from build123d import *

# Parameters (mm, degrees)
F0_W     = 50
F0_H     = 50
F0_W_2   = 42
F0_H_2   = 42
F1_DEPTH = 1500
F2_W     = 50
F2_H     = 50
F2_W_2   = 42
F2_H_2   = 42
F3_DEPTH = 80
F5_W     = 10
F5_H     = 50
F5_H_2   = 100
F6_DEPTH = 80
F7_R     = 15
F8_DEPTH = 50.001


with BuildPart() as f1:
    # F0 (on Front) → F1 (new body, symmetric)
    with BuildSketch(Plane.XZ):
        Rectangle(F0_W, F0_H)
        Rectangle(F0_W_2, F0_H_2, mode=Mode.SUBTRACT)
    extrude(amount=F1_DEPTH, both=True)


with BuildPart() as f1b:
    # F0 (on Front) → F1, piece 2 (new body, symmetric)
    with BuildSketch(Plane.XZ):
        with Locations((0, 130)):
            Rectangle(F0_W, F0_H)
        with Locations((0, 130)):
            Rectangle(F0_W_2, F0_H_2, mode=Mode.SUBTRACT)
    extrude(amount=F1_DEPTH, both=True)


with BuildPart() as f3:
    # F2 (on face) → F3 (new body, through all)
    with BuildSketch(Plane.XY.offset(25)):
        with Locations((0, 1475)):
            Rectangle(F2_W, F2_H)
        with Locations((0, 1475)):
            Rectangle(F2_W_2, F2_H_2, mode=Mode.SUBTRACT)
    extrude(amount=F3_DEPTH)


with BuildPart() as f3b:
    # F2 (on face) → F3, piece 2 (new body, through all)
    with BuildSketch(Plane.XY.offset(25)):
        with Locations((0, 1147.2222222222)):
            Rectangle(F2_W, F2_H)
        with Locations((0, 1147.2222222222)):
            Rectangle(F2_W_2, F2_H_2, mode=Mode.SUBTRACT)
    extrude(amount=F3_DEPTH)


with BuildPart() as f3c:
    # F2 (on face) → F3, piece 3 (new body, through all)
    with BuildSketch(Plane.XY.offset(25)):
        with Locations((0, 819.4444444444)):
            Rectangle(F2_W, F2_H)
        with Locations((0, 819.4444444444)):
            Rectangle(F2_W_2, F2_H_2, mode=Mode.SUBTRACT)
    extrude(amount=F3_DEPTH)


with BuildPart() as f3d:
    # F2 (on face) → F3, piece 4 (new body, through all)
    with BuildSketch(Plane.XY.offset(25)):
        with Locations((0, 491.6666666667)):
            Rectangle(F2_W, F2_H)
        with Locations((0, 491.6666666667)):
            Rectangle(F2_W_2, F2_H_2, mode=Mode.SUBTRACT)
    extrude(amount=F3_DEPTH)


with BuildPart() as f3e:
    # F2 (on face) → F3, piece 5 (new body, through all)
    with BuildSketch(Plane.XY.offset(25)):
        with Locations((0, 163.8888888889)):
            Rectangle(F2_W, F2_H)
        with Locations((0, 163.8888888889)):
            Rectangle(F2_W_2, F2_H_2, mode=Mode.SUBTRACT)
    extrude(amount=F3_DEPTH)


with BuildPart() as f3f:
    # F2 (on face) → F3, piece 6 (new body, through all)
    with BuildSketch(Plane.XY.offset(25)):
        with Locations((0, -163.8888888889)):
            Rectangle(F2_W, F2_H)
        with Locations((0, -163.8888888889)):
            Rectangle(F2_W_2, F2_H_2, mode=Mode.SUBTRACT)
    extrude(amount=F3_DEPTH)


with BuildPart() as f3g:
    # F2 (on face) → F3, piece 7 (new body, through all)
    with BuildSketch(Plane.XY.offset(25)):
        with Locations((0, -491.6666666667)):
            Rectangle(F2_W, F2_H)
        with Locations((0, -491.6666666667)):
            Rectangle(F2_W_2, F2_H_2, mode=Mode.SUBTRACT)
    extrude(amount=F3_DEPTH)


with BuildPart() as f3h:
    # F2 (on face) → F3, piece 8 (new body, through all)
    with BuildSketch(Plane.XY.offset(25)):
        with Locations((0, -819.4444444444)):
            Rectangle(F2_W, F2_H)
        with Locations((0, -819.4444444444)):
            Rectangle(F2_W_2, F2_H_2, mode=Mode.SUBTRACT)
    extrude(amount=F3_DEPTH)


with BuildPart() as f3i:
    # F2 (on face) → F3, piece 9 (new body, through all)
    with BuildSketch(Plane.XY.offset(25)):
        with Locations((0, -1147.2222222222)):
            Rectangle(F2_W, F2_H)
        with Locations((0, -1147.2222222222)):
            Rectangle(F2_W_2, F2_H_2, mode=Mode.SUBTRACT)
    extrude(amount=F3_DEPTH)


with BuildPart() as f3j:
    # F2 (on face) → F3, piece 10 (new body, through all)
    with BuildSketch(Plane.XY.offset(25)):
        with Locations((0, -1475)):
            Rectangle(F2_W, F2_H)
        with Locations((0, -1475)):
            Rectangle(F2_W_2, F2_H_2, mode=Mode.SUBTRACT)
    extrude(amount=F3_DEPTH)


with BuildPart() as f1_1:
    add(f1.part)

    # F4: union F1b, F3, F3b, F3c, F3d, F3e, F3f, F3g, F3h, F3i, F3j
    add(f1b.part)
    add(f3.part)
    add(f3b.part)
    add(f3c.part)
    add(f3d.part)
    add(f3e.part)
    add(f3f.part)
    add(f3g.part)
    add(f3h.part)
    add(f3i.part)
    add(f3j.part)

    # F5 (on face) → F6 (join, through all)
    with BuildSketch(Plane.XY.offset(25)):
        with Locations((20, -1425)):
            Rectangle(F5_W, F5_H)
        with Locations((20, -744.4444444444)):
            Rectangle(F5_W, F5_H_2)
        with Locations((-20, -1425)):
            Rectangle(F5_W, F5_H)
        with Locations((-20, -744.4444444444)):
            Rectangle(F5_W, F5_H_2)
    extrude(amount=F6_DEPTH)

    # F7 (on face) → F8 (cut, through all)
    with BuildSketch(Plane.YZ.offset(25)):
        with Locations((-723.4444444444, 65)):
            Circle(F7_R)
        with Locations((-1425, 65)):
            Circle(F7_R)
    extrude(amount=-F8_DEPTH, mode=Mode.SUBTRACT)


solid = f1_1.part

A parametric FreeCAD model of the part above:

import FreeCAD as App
import Part
import Sketcher

V = App.Vector


def add_polygon(sketch, points):
    """Adds a closed chain of lines whose ends are joined by coincident constraints."""
    first, n = sketch.GeometryCount, len(points)
    for a, b in zip(points, points[1:] + points[:1]):
        sketch.addGeometry(Part.LineSegment(App.Vector(*a, 0), App.Vector(*b, 0)), False)
    for i in range(n):
        sketch.addConstraint(Sketcher.Constraint("Coincident", first + i, 2, first + (i + 1) % n, 1))

doc = App.newDocument("Part")
body = doc.addObject("PartDesign::Body", "Body")

# Sketch on XZ plane
sketch1 = body.newObject("Sketcher::SketchObject", "Sketch")
sketch1.AttachmentSupport = (doc.getObject("XZ_Plane"), [""])
sketch1.MapMode = "FlatFace"
add_polygon(sketch1, [(-25, 25), (-25, -25), (25, -25), (25, 25)])  # lines 0-3
add_polygon(sketch1, [(21, -21), (-21, -21), (-21, 21), (21, 21)])  # lines 4-7
sketch1.addConstraint([
    Sketcher.Constraint("Vertical", 0),
    Sketcher.Constraint("Horizontal", 1),
    Sketcher.Constraint("Vertical", 2),
    Sketcher.Constraint("Horizontal", 3),
    Sketcher.Constraint("Horizontal", 4),
    Sketcher.Constraint("Vertical", 5),
    Sketcher.Constraint("Horizontal", 6),
    Sketcher.Constraint("Vertical", 7),
    Sketcher.Constraint("Symmetric", 0, 2, 2, 2, -1, 1),
    Sketcher.Constraint("Symmetric", 4, 2, 6, 2, -1, 1),
    Sketcher.Constraint("Equal", 3, 0),
    Sketcher.Constraint("Equal", 6, 5),
    Sketcher.Constraint("DistanceX", 1, 1, 1, 2, 50.0),
    Sketcher.Constraint("DistanceX", 4, 2, 4, 1, 42.0),
])
pad1 = body.newObject("PartDesign::Pad", "Pad")
pad1.Profile = sketch1
pad1.Length = 3000
pad1.Midplane = True
body2 = doc.addObject("PartDesign::Body", "Body001")

# Sketch on XZ plane
sketch2 = body2.newObject("Sketcher::SketchObject", "Sketch001")
sketch2.AttachmentSupport = (doc.getObject("XZ_Plane001"), [""])
sketch2.MapMode = "FlatFace"
add_polygon(sketch2, [(-25, 155), (-25, 105), (25, 105), (25, 155)])  # lines 0-3
add_polygon(sketch2, [(21, 109), (-21, 109), (-21, 151), (21, 151)])  # lines 4-7
sketch2.addConstraint([
    Sketcher.Constraint("Vertical", 0),
    Sketcher.Constraint("Horizontal", 1),
    Sketcher.Constraint("Vertical", 2),
    Sketcher.Constraint("Horizontal", 3),
    Sketcher.Constraint("Horizontal", 4),
    Sketcher.Constraint("Vertical", 5),
    Sketcher.Constraint("Horizontal", 6),
    Sketcher.Constraint("Vertical", 7),
    Sketcher.Constraint("Equal", 3, 0),
    Sketcher.Constraint("Equal", 6, 5),
    Sketcher.Constraint("DistanceX", 1, 1, 1, 2, 50.0),
    Sketcher.Constraint("DistanceX", 4, 2, 4, 1, 42.0),
    Sketcher.Constraint("DistanceX", 0, 2, -1, 1, 25.0),
    Sketcher.Constraint("DistanceY", -1, 1, 0, 2, 105.0),
    Sketcher.Constraint("DistanceX", 4, 2, -1, 1, 21.0),
    Sketcher.Constraint("DistanceY", -1, 1, 4, 2, 109.0),
])
pad2 = body2.newObject("PartDesign::Pad", "Pad001")
pad2.Profile = sketch2
pad2.Length = 3000
pad2.Midplane = True
body3 = doc.addObject("PartDesign::Body", "Body002")

# Sketch on XY plane
sketch3 = body3.newObject("Sketcher::SketchObject", "Sketch002")
sketch3.AttachmentSupport = (doc.getObject("XY_Plane002"), [""])
sketch3.MapMode = "FlatFace"
sketch3.AttachmentOffset = App.Placement(V(0, 0, 25), App.Rotation())
add_polygon(sketch3, [(-25, 1500), (-25, 1450), (25, 1450), (25, 1500)])  # lines 0-3
add_polygon(sketch3, [(21, 1454), (-21, 1454), (-21, 1496), (21, 1496)])  # lines 4-7
sketch3.addConstraint([
    Sketcher.Constraint("Vertical", 0),
    Sketcher.Constraint("Horizontal", 1),
    Sketcher.Constraint("Vertical", 2),
    Sketcher.Constraint("Horizontal", 3),
    Sketcher.Constraint("Horizontal", 4),
    Sketcher.Constraint("Vertical", 5),
    Sketcher.Constraint("Horizontal", 6),
    Sketcher.Constraint("Vertical", 7),
    Sketcher.Constraint("Equal", 3, 0),
    Sketcher.Constraint("Equal", 6, 5),
    Sketcher.Constraint("DistanceX", 1, 1, 1, 2, 50.0),
    Sketcher.Constraint("DistanceX", 4, 2, 4, 1, 42.0),
    Sketcher.Constraint("DistanceX", 0, 2, -1, 1, 25.0),
    Sketcher.Constraint("DistanceY", -1, 1, 0, 2, 1450.0),
    Sketcher.Constraint("DistanceX", 4, 2, -1, 1, 21.0),
    Sketcher.Constraint("DistanceY", -1, 1, 4, 2, 1454.0),
])
pad3 = body3.newObject("PartDesign::Pad", "Pad002")
pad3.Profile = sketch3
pad3.Length = 80
body4 = doc.addObject("PartDesign::Body", "Body003")

# Sketch on XY plane
sketch4 = body4.newObject("Sketcher::SketchObject", "Sketch003")
sketch4.AttachmentSupport = (doc.getObject("XY_Plane003"), [""])
sketch4.MapMode = "FlatFace"
sketch4.AttachmentOffset = App.Placement(V(0, 0, 25), App.Rotation())
add_polygon(sketch4, [(-25, 1172.222222), (-25, 1122.222222), (25, 1122.222222), (25, 1172.222222)])  # lines 0-3
add_polygon(sketch4, [(21, 1126.222222), (-21, 1126.222222), (-21, 1168.222222), (21, 1168.222222)])  # lines 4-7
sketch4.addConstraint([
    Sketcher.Constraint("Vertical", 0),
    Sketcher.Constraint("Horizontal", 1),
    Sketcher.Constraint("Vertical", 2),
    Sketcher.Constraint("Horizontal", 3),
    Sketcher.Constraint("Horizontal", 4),
    Sketcher.Constraint("Vertical", 5),
    Sketcher.Constraint("Horizontal", 6),
    Sketcher.Constraint("Vertical", 7),
    Sketcher.Constraint("Equal", 3, 0),
    Sketcher.Constraint("Equal", 6, 5),
    Sketcher.Constraint("DistanceX", 1, 1, 1, 2, 50.0),
    Sketcher.Constraint("DistanceX", 4, 2, 4, 1, 42.0),
    Sketcher.Constraint("DistanceX", 0, 2, -1, 1, 25.0),
    Sketcher.Constraint("DistanceX", 4, 2, -1, 1, 21.0),
    Sketcher.Constraint("DistanceY", 0, 2, 4, 2, 4.0),
    Sketcher.Constraint("DistanceY", -1, 1, 0, 2, 1122.222222),
])
pad4 = body4.newObject("PartDesign::Pad", "Pad003")
pad4.Profile = sketch4
pad4.Length = 80
body5 = doc.addObject("PartDesign::Body", "Body004")

# Sketch on XY plane
sketch5 = body5.newObject("Sketcher::SketchObject", "Sketch004")
sketch5.AttachmentSupport = (doc.getObject("XY_Plane004"), [""])
sketch5.MapMode = "FlatFace"
sketch5.AttachmentOffset = App.Placement(V(0, 0, 25), App.Rotation())
add_polygon(sketch5, [(-25, 844.444444), (-25, 794.444444), (25, 794.444444), (25, 844.444444)])  # lines 0-3
add_polygon(sketch5, [(21, 798.444444), (-21, 798.444444), (-21, 840.444444), (21, 840.444444)])  # lines 4-7
sketch5.addConstraint([
    Sketcher.Constraint("Vertical", 0),
    Sketcher.Constraint("Horizontal", 1),
    Sketcher.Constraint("Vertical", 2),
    Sketcher.Constraint("Horizontal", 3),
    Sketcher.Constraint("Horizontal", 4),
    Sketcher.Constraint("Vertical", 5),
    Sketcher.Constraint("Horizontal", 6),
    Sketcher.Constraint("Vertical", 7),
    Sketcher.Constraint("Equal", 3, 0),
    Sketcher.Constraint("Equal", 6, 5),
    Sketcher.Constraint("DistanceX", 1, 1, 1, 2, 50.0),
    Sketcher.Constraint("DistanceX", 4, 2, 4, 1, 42.0),
    Sketcher.Constraint("DistanceX", 0, 2, -1, 1, 25.0),
    Sketcher.Constraint("DistanceX", 4, 2, -1, 1, 21.0),
    Sketcher.Constraint("DistanceY", 0, 2, 4, 2, 4.0),
    Sketcher.Constraint("DistanceY", -1, 1, 0, 2, 794.444444),
])
pad5 = body5.newObject("PartDesign::Pad", "Pad004")
pad5.Profile = sketch5
pad5.Length = 80
body6 = doc.addObject("PartDesign::Body", "Body005")

# Sketch on XY plane
sketch6 = body6.newObject("Sketcher::SketchObject", "Sketch005")
sketch6.AttachmentSupport = (doc.getObject("XY_Plane005"), [""])
sketch6.MapMode = "FlatFace"
sketch6.AttachmentOffset = App.Placement(V(0, 0, 25), App.Rotation())
add_polygon(sketch6, [(-25, 516.666667), (-25, 466.666667), (25, 466.666667), (25, 516.666667)])  # lines 0-3
add_polygon(sketch6, [(21, 470.666667), (-21, 470.666667), (-21, 512.666667), (21, 512.666667)])  # lines 4-7
sketch6.addConstraint([
    Sketcher.Constraint("Vertical", 0),
    Sketcher.Constraint("Horizontal", 1),
    Sketcher.Constraint("Vertical", 2),
    Sketcher.Constraint("Horizontal", 3),
    Sketcher.Constraint("Horizontal", 4),
    Sketcher.Constraint("Vertical", 5),
    Sketcher.Constraint("Horizontal", 6),
    Sketcher.Constraint("Vertical", 7),
    Sketcher.Constraint("Equal", 3, 0),
    Sketcher.Constraint("Equal", 6, 5),
    Sketcher.Constraint("DistanceX", 1, 1, 1, 2, 50.0),
    Sketcher.Constraint("DistanceX", 4, 2, 4, 1, 42.0),
    Sketcher.Constraint("DistanceX", 0, 2, -1, 1, 25.0),
    Sketcher.Constraint("DistanceX", 4, 2, -1, 1, 21.0),
    Sketcher.Constraint("DistanceY", 0, 2, 4, 2, 4.0),
    Sketcher.Constraint("DistanceY", -1, 1, 0, 2, 466.666667),
])
pad6 = body6.newObject("PartDesign::Pad", "Pad005")
pad6.Profile = sketch6
pad6.Length = 80
body7 = doc.addObject("PartDesign::Body", "Body006")

# Sketch on XY plane
sketch7 = body7.newObject("Sketcher::SketchObject", "Sketch006")
sketch7.AttachmentSupport = (doc.getObject("XY_Plane006"), [""])
sketch7.MapMode = "FlatFace"
sketch7.AttachmentOffset = App.Placement(V(0, 0, 25), App.Rotation())
add_polygon(sketch7, [(-25, 188.888889), (-25, 138.888889), (25, 138.888889), (25, 188.888889)])  # lines 0-3
add_polygon(sketch7, [(21, 142.888889), (-21, 142.888889), (-21, 184.888889), (21, 184.888889)])  # lines 4-7
sketch7.addConstraint([
    Sketcher.Constraint("Vertical", 0),
    Sketcher.Constraint("Horizontal", 1),
    Sketcher.Constraint("Vertical", 2),
    Sketcher.Constraint("Horizontal", 3),
    Sketcher.Constraint("Horizontal", 4),
    Sketcher.Constraint("Vertical", 5),
    Sketcher.Constraint("Horizontal", 6),
    Sketcher.Constraint("Vertical", 7),
    Sketcher.Constraint("Equal", 3, 0),
    Sketcher.Constraint("Equal", 6, 5),
    Sketcher.Constraint("DistanceX", 1, 1, 1, 2, 50.0),
    Sketcher.Constraint("DistanceX", 4, 2, 4, 1, 42.0),
    Sketcher.Constraint("DistanceX", 0, 2, -1, 1, 25.0),
    Sketcher.Constraint("DistanceX", 4, 2, -1, 1, 21.0),
    Sketcher.Constraint("DistanceY", 0, 2, 4, 2, 4.0),
    Sketcher.Constraint("DistanceY", -1, 1, 0, 2, 138.888889),
])
pad7 = body7.newObject("PartDesign::Pad", "Pad006")
pad7.Profile = sketch7
pad7.Length = 80
body8 = doc.addObject("PartDesign::Body", "Body007")

# Sketch on XY plane
sketch8 = body8.newObject("Sketcher::SketchObject", "Sketch007")
sketch8.AttachmentSupport = (doc.getObject("XY_Plane007"), [""])
sketch8.MapMode = "FlatFace"
sketch8.AttachmentOffset = App.Placement(V(0, 0, 25), App.Rotation())
add_polygon(sketch8, [(-25, -138.888889), (-25, -188.888889), (25, -188.888889), (25, -138.888889)])  # lines 0-3
add_polygon(sketch8, [(21, -184.888889), (-21, -184.888889), (-21, -142.888889), (21, -142.888889)])  # lines 4-7
sketch8.addConstraint([
    Sketcher.Constraint("Vertical", 0),
    Sketcher.Constraint("Horizontal", 1),
    Sketcher.Constraint("Vertical", 2),
    Sketcher.Constraint("Horizontal", 3),
    Sketcher.Constraint("Horizontal", 4),
    Sketcher.Constraint("Vertical", 5),
    Sketcher.Constraint("Horizontal", 6),
    Sketcher.Constraint("Vertical", 7),
    Sketcher.Constraint("Equal", 3, 0),
    Sketcher.Constraint("Equal", 6, 5),
    Sketcher.Constraint("DistanceX", 1, 1, 1, 2, 50.0),
    Sketcher.Constraint("DistanceX", 4, 2, 4, 1, 42.0),
    Sketcher.Constraint("DistanceX", 0, 2, -1, 1, 25.0),
    Sketcher.Constraint("DistanceX", 4, 2, -1, 1, 21.0),
    Sketcher.Constraint("DistanceY", 0, 2, 4, 2, 4.0),
    Sketcher.Constraint("DistanceY", 0, 2, -1, 1, 188.888889),
])
pad8 = body8.newObject("PartDesign::Pad", "Pad007")
pad8.Profile = sketch8
pad8.Length = 80
body9 = doc.addObject("PartDesign::Body", "Body008")

# Sketch on XY plane
sketch9 = body9.newObject("Sketcher::SketchObject", "Sketch008")
sketch9.AttachmentSupport = (doc.getObject("XY_Plane008"), [""])
sketch9.MapMode = "FlatFace"
sketch9.AttachmentOffset = App.Placement(V(0, 0, 25), App.Rotation())
add_polygon(sketch9, [(-25, -466.666667), (-25, -516.666667), (25, -516.666667), (25, -466.666667)])  # lines 0-3
add_polygon(sketch9, [(21, -512.666667), (-21, -512.666667), (-21, -470.666667), (21, -470.666667)])  # lines 4-7
sketch9.addConstraint([
    Sketcher.Constraint("Vertical", 0),
    Sketcher.Constraint("Horizontal", 1),
    Sketcher.Constraint("Vertical", 2),
    Sketcher.Constraint("Horizontal", 3),
    Sketcher.Constraint("Horizontal", 4),
    Sketcher.Constraint("Vertical", 5),
    Sketcher.Constraint("Horizontal", 6),
    Sketcher.Constraint("Vertical", 7),
    Sketcher.Constraint("Equal", 3, 0),
    Sketcher.Constraint("Equal", 6, 5),
    Sketcher.Constraint("DistanceX", 1, 1, 1, 2, 50.0),
    Sketcher.Constraint("DistanceX", 4, 2, 4, 1, 42.0),
    Sketcher.Constraint("DistanceX", 0, 2, -1, 1, 25.0),
    Sketcher.Constraint("DistanceX", 4, 2, -1, 1, 21.0),
    Sketcher.Constraint("DistanceY", 0, 2, 4, 2, 4.0),
    Sketcher.Constraint("DistanceY", 0, 2, -1, 1, 516.666667),
])
pad9 = body9.newObject("PartDesign::Pad", "Pad008")
pad9.Profile = sketch9
pad9.Length = 80
body10 = doc.addObject("PartDesign::Body", "Body009")

# Sketch on XY plane
sketch10 = body10.newObject("Sketcher::SketchObject", "Sketch009")
sketch10.AttachmentSupport = (doc.getObject("XY_Plane009"), [""])
sketch10.MapMode = "FlatFace"
sketch10.AttachmentOffset = App.Placement(V(0, 0, 25), App.Rotation())
add_polygon(sketch10, [(-25, -794.444444), (-25, -844.444444), (25, -844.444444), (25, -794.444444)])  # lines 0-3
add_polygon(sketch10, [(21, -840.444444), (-21, -840.444444), (-21, -798.444444), (21, -798.444444)])  # lines 4-7
sketch10.addConstraint([
    Sketcher.Constraint("Vertical", 0),
    Sketcher.Constraint("Horizontal", 1),
    Sketcher.Constraint("Vertical", 2),
    Sketcher.Constraint("Horizontal", 3),
    Sketcher.Constraint("Horizontal", 4),
    Sketcher.Constraint("Vertical", 5),
    Sketcher.Constraint("Horizontal", 6),
    Sketcher.Constraint("Vertical", 7),
    Sketcher.Constraint("Equal", 3, 0),
    Sketcher.Constraint("Equal", 6, 5),
    Sketcher.Constraint("DistanceX", 1, 1, 1, 2, 50.0),
    Sketcher.Constraint("DistanceX", 4, 2, 4, 1, 42.0),
    Sketcher.Constraint("DistanceX", 0, 2, -1, 1, 25.0),
    Sketcher.Constraint("DistanceX", 4, 2, -1, 1, 21.0),
    Sketcher.Constraint("DistanceY", 0, 2, 4, 2, 4.0),
    Sketcher.Constraint("DistanceY", 0, 2, -1, 1, 844.444444),
])
pad10 = body10.newObject("PartDesign::Pad", "Pad009")
pad10.Profile = sketch10
pad10.Length = 80
body11 = doc.addObject("PartDesign::Body", "Body010")

# Sketch on XY plane
sketch11 = body11.newObject("Sketcher::SketchObject", "Sketch010")
sketch11.AttachmentSupport = (doc.getObject("XY_Plane010"), [""])
sketch11.MapMode = "FlatFace"
sketch11.AttachmentOffset = App.Placement(V(0, 0, 25), App.Rotation())
add_polygon(sketch11, [(-25, -1122.222222), (-25, -1172.222222), (25, -1172.222222), (25, -1122.222222)])  # lines 0-3
add_polygon(sketch11, [(21, -1168.222222), (-21, -1168.222222), (-21, -1126.222222), (21, -1126.222222)])  # lines 4-7
sketch11.addConstraint([
    Sketcher.Constraint("Vertical", 0),
    Sketcher.Constraint("Horizontal", 1),
    Sketcher.Constraint("Vertical", 2),
    Sketcher.Constraint("Horizontal", 3),
    Sketcher.Constraint("Horizontal", 4),
    Sketcher.Constraint("Vertical", 5),
    Sketcher.Constraint("Horizontal", 6),
    Sketcher.Constraint("Vertical", 7),
    Sketcher.Constraint("Equal", 3, 0),
    Sketcher.Constraint("Equal", 6, 5),
    Sketcher.Constraint("DistanceX", 1, 1, 1, 2, 50.0),
    Sketcher.Constraint("DistanceX", 4, 2, 4, 1, 42.0),
    Sketcher.Constraint("DistanceX", 0, 2, -1, 1, 25.0),
    Sketcher.Constraint("DistanceX", 4, 2, -1, 1, 21.0),
    Sketcher.Constraint("DistanceY", 0, 2, 4, 2, 4.0),
    Sketcher.Constraint("DistanceY", 0, 2, -1, 1, 1172.222222),
])
pad11 = body11.newObject("PartDesign::Pad", "Pad010")
pad11.Profile = sketch11
pad11.Length = 80
body12 = doc.addObject("PartDesign::Body", "Body011")

# Sketch on XY plane
sketch12 = body12.newObject("Sketcher::SketchObject", "Sketch011")
sketch12.AttachmentSupport = (doc.getObject("XY_Plane011"), [""])
sketch12.MapMode = "FlatFace"
sketch12.AttachmentOffset = App.Placement(V(0, 0, 25), App.Rotation())
add_polygon(sketch12, [(-25, -1450), (-25, -1500), (25, -1500), (25, -1450)])  # lines 0-3
add_polygon(sketch12, [(21, -1496), (-21, -1496), (-21, -1454), (21, -1454)])  # lines 4-7
sketch12.addConstraint([
    Sketcher.Constraint("Vertical", 0),
    Sketcher.Constraint("Horizontal", 1),
    Sketcher.Constraint("Vertical", 2),
    Sketcher.Constraint("Horizontal", 3),
    Sketcher.Constraint("Horizontal", 4),
    Sketcher.Constraint("Vertical", 5),
    Sketcher.Constraint("Horizontal", 6),
    Sketcher.Constraint("Vertical", 7),
    Sketcher.Constraint("Equal", 3, 0),
    Sketcher.Constraint("Equal", 6, 5),
    Sketcher.Constraint("DistanceX", 1, 1, 1, 2, 50.0),
    Sketcher.Constraint("DistanceX", 4, 2, 4, 1, 42.0),
    Sketcher.Constraint("DistanceX", 0, 2, -1, 1, 25.0),
    Sketcher.Constraint("DistanceY", 0, 2, -1, 1, 1500.0),
    Sketcher.Constraint("DistanceX", 4, 2, -1, 1, 21.0),
    Sketcher.Constraint("DistanceY", 4, 2, -1, 1, 1496.0),
])
pad12 = body12.newObject("PartDesign::Pad", "Pad011")
pad12.Profile = sketch12
pad12.Length = 80
body.AllowCompound = True
doc.recompute()

boolean = body.newObject("PartDesign::Boolean", "Boolean")
boolean.Type = "Fuse"
boolean.addObjects([body2])
doc.recompute()

boolean2 = body.newObject("PartDesign::Boolean", "Boolean001")
boolean2.Type = "Fuse"
boolean2.addObjects([body3])
doc.recompute()

boolean3 = body.newObject("PartDesign::Boolean", "Boolean002")
boolean3.Type = "Fuse"
boolean3.addObjects([body4])
doc.recompute()

boolean4 = body.newObject("PartDesign::Boolean", "Boolean003")
boolean4.Type = "Fuse"
boolean4.addObjects([body5])
doc.recompute()

boolean5 = body.newObject("PartDesign::Boolean", "Boolean004")
boolean5.Type = "Fuse"
boolean5.addObjects([body6])
doc.recompute()

boolean6 = body.newObject("PartDesign::Boolean", "Boolean005")
boolean6.Type = "Fuse"
boolean6.addObjects([body7])
doc.recompute()

boolean7 = body.newObject("PartDesign::Boolean", "Boolean006")
boolean7.Type = "Fuse"
boolean7.addObjects([body8])
doc.recompute()

boolean8 = body.newObject("PartDesign::Boolean", "Boolean007")
boolean8.Type = "Fuse"
boolean8.addObjects([body9])
doc.recompute()

boolean9 = body.newObject("PartDesign::Boolean", "Boolean008")
boolean9.Type = "Fuse"
boolean9.addObjects([body10])
doc.recompute()

boolean10 = body.newObject("PartDesign::Boolean", "Boolean009")
boolean10.Type = "Fuse"
boolean10.addObjects([body11])
doc.recompute()

boolean11 = body.newObject("PartDesign::Boolean", "Boolean010")
boolean11.Type = "Fuse"
boolean11.addObjects([body12])

# Sketch on XY plane
sketch13 = body.newObject("Sketcher::SketchObject", "Sketch012")
sketch13.AttachmentSupport = (doc.getObject("XY_Plane"), [""])
sketch13.MapMode = "FlatFace"
sketch13.AttachmentOffset = App.Placement(V(0, 0, 25), App.Rotation())
add_polygon(sketch13, [(15, -1400), (15, -1450), (25, -1450), (25, -1400)])  # lines 0-3
add_polygon(sketch13, [(15, -694.444444), (15, -794.444444), (25, -794.444444), (25, -694.444444)])  # lines 4-7
add_polygon(sketch13, [(-25, -1400), (-25, -1450), (-15, -1450), (-15, -1400)])  # lines 8-11
add_polygon(sketch13, [(-25, -694.444444), (-25, -794.444444), (-15, -794.444444), (-15, -694.444444)])  # lines 12-15
sketch13.addConstraint([
    Sketcher.Constraint("Vertical", 0),
    Sketcher.Constraint("Horizontal", 1),
    Sketcher.Constraint("Vertical", 2),
    Sketcher.Constraint("Horizontal", 3),
    Sketcher.Constraint("Vertical", 4),
    Sketcher.Constraint("Horizontal", 5),
    Sketcher.Constraint("Vertical", 6),
    Sketcher.Constraint("Horizontal", 7),
    Sketcher.Constraint("Vertical", 8),
    Sketcher.Constraint("Horizontal", 9),
    Sketcher.Constraint("Vertical", 10),
    Sketcher.Constraint("Horizontal", 11),
    Sketcher.Constraint("Vertical", 12),
    Sketcher.Constraint("Horizontal", 13),
    Sketcher.Constraint("Vertical", 14),
    Sketcher.Constraint("Horizontal", 15),
    Sketcher.Constraint("Symmetric", 1, 2, 8, 2, -2),
    Sketcher.Constraint("Symmetric", 3, 2, 10, 2, -2),
    Sketcher.Constraint("Symmetric", 5, 2, 12, 2, -2),
    Sketcher.Constraint("Symmetric", 7, 2, 14, 2, -2),
    Sketcher.Constraint("Vertical", 3, 2, 4, 2),
    Sketcher.Constraint("Vertical", 2, 2, 5, 2),
    Sketcher.Constraint("DistanceX", 1, 1, 1, 2, 10.0),
    Sketcher.Constraint("DistanceY", 0, 2, 0, 1, 50.0),
    Sketcher.Constraint("DistanceY", 4, 2, 4, 1, 100.0),
    Sketcher.Constraint("DistanceX", -1, 1, 0, 2, 15.0),
    Sketcher.Constraint("DistanceY", 0, 2, -1, 1, 1450.0),
    Sketcher.Constraint("DistanceY", 4, 2, -1, 1, 794.444444),
])
pad13 = body.newObject("PartDesign::Pad", "Pad012")
pad13.Profile = sketch13
pad13.Length = 80

# Sketch on YZ plane
sketch14 = body.newObject("Sketcher::SketchObject", "Sketch013")
sketch14.AttachmentSupport = (doc.getObject("YZ_Plane"), [""])
sketch14.MapMode = "FlatFace"
sketch14.AttachmentOffset = App.Placement(V(0, 0, 25), App.Rotation())
sketch14.addGeometry([
    Part.Circle(V(-723.444444, 65, 0), V(0, 0, 1), 15),
    Part.Circle(V(-1425, 65, 0), V(0, 0, 1), 15),
], False)
sketch14.addConstraint([
    Sketcher.Constraint("Equal", 0, 1),
    Sketcher.Constraint("Horizontal", 0, 3, 1, 3),
    Sketcher.Constraint("Diameter", 0, 30.0),
    Sketcher.Constraint("DistanceY", -1, 1, 0, 3, 65.0),
    Sketcher.Constraint("DistanceX", 1, 3, -1, 1, 1425.0),
    Sketcher.Constraint("DistanceX", 0, 3, -1, 1, 723.444444),
])
pocket1 = body.newObject("PartDesign::Pocket", "Pocket")
pocket1.Profile = sketch14
pocket1.Type = "ThroughAll"

doc.recompute()
